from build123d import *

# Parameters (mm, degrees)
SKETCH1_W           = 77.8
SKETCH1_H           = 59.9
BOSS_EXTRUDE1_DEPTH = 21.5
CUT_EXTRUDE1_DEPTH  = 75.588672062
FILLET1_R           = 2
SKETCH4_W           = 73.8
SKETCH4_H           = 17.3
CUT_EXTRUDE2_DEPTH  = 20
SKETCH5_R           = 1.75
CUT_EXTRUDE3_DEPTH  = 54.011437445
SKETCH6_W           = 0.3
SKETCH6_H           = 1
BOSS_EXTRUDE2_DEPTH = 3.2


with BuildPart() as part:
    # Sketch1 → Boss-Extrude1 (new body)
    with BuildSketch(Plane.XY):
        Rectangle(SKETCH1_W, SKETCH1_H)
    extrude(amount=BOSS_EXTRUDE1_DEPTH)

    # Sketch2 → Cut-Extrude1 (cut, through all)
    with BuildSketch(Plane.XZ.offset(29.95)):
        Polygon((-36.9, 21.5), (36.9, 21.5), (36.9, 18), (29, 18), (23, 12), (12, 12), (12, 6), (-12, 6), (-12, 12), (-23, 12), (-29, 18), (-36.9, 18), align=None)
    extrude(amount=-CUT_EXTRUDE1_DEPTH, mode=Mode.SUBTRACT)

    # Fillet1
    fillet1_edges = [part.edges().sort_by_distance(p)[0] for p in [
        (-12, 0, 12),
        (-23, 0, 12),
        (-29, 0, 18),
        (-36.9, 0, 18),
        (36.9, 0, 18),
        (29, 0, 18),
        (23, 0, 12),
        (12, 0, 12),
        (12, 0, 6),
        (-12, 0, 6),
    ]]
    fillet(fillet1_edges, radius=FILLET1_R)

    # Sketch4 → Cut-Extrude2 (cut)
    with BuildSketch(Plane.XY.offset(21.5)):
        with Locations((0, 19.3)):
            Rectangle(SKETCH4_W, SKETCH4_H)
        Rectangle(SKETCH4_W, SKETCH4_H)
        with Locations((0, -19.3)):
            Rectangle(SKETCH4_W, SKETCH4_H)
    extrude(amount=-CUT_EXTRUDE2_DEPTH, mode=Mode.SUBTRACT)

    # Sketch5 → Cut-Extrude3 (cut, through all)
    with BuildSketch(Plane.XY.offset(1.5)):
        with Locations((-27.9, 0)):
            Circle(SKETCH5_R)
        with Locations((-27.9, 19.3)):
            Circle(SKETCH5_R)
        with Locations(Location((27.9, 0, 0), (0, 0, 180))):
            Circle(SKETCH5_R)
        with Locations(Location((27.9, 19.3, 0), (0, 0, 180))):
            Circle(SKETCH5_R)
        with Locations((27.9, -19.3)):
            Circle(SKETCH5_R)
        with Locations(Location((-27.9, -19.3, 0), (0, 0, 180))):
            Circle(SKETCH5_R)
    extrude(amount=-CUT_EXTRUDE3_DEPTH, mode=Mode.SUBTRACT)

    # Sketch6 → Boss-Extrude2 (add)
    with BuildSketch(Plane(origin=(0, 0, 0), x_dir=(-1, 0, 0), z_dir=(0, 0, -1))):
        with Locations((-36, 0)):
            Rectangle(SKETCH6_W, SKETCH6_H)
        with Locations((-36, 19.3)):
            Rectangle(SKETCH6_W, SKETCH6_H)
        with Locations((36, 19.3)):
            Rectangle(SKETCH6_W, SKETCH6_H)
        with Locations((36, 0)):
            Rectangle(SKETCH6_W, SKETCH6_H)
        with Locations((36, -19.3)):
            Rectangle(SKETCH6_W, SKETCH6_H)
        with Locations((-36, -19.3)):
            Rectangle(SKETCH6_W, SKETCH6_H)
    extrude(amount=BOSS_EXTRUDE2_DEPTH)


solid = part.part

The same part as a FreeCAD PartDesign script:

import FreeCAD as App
import Part
import Sketcher

V = App.Vector


def edges_at(feature, points):
    """Names of the edges that pass closest to the given points."""
    edges = feature.Shape.Edges
    near = lambda p: min(range(len(edges)), key=lambda i: edges[i].distToShape(Part.Vertex(*p))[0])
    return sorted({f"Edge{near(p) + 1}" for p in points})

doc = App.newDocument("Part")
params = doc.addObject("Spreadsheet::Sheet", "Params")
for row, (alias, value) in enumerate([
    ("sketch1_width", "77.8 mm"),
    ("sketch1_height", "59.9 mm"),
    ("pad1_length", "21.5 mm"),
    ("sketch2_width", "11 mm"),
    ("sketch2_width2", "24 mm"),
    ("sketch2_height", "6 mm"),
    ("sketch2_width3", "73.8 mm"),
    ("sketch2_width4", "7.9 mm"),
    ("fillet_radius", "2 mm"),
    ("sketch3_width", "73.8 mm"),
    ("sketch3_height", "17.3 mm"),
    ("pocket2_length", "20 mm"),
    ("sketch4_diameter", "3.5 mm"),
    ("sketch5_height", "1 mm"),
    ("sketch5_width", "0.3 mm"),
    ("pad2_length", "3.2 mm"),
], start=1):
    params.set(f"A{row}", alias)
    params.set(f"B{row}", "=" + value)
    params.setAlias(f"B{row}", alias)

body = doc.addObject("PartDesign::Body", "Body")

sketch1 = doc.addObject("Sketcher::SketchObject", "Sketch")
body.addObject(sketch1)
sketch1.AttachmentSupport = (doc.XY_Plane, [""])
sketch1.MapMode = "FlatFace"
sketch1.addGeometry([
    Part.LineSegment(V(-38.9, 29.95, 0), V(-38.9, -29.95, 0)),
    Part.LineSegment(V(-38.9, -29.95, 0), V(38.9, -29.95, 0)),
    Part.LineSegment(V(38.9, -29.95, 0), V(38.9, 29.95, 0)),
    Part.LineSegment(V(38.9, 29.95, 0), V(-38.9, 29.95, 0)),
], False)
sketch1.addConstraint([
    Sketcher.Constraint("Coincident", 0, 2, 1, 1),
    Sketcher.Constraint("Coincident", 1, 2, 2, 1),
    Sketcher.Constraint("Coincident", 2, 2, 3, 1),
    Sketcher.Constraint("Coincident", 3, 2, 0, 1),
    Sketcher.Constraint("Vertical", 0),
    Sketcher.Constraint("Horizontal", 1),
    Sketcher.Constraint("Vertical", 2),
    Sketcher.Constraint("Horizontal", 3),
    Sketcher.Constraint("Symmetric", 0, 2, 2, 2, -1, 1),
    Sketcher.Constraint("DistanceX", 1, 1, 1, 2, 77.8),
    Sketcher.Constraint("DistanceY", 0, 2, 0, 1, 59.9),
])
sketch1.setExpression("Constraints[9]", "Params.sketch1_width")
sketch1.setExpression("Constraints[10]", "Params.sketch1_height")
pad1 = doc.addObject("PartDesign::Pad", "Pad")
body.addObject(pad1)
pad1.Profile = sketch1
pad1.setExpression("Length", "Params.pad1_length")

sketch2 = doc.addObject("Sketcher::SketchObject", "Sketch001")
body.addObject(sketch2)
sketch2.AttachmentSupport = (doc.XZ_Plane, [""])
sketch2.MapMode = "FlatFace"
sketch2.AttachmentOffset = App.Placement(V(0, 0, 29.95), App.Rotation())
sketch2.addGeometry([
    Part.LineSegment(V(36.9, 21.5, 0), V(-36.9, 21.5, 0)),
    Part.LineSegment(V(-36.9, 21.5, 0), V(-36.9, 18, 0)),
    Part.LineSegment(V(-36.9, 18, 0), V(-29, 18, 0)),
    Part.LineSegment(V(-29, 18, 0), V(-23, 12, 0)),
    Part.LineSegment(V(-23, 12, 0), V(-12, 12, 0)),
    Part.LineSegment(V(-12, 12, 0), V(-12, 6, 0)),
    Part.LineSegment(V(-12, 6, 0), V(12, 6, 0)),
    Part.LineSegment(V(12, 6, 0), V(12, 12, 0)),
    Part.LineSegment(V(12, 12, 0), V(23, 12, 0)),
    Part.LineSegment(V(23, 12, 0), V(29, 18, 0)),
    Part.LineSegment(V(29, 18, 0), V(36.9, 18, 0)),
    Part.LineSegment(V(36.9, 18, 0), V(36.9, 21.5, 0)),
], False)
sketch2.addConstraint([
    Sketcher.Constraint("Coincident", 0, 2, 1, 1),
    Sketcher.Constraint("Coincident", 1, 2, 2, 1),
    Sketcher.Constraint("Coincident", 2, 2, 3, 1),
    Sketcher.Constraint("Coincident", 3, 2, 4, 1),
    Sketcher.Constraint("Coincident", 4, 2, 5, 1),
    Sketcher.Constraint("Coincident", 5, 2, 6, 1),
    Sketcher.Constraint("Coincident", 6, 2, 7, 1),
    Sketcher.Constraint("Coincident", 7, 2, 8, 1),
    Sketcher.Constraint("Coincident", 8, 2, 9, 1),
    Sketcher.Constraint("Coincident", 9, 2, 10, 1),
    Sketcher.Constraint("Coincident", 10, 2, 11, 1),
    Sketcher.Constraint("Coincident", 11, 2, 0, 1),
    Sketcher.Constraint("Horizontal", 0),
    Sketcher.Constraint("Vertical", 1),
    Sketcher.Constraint("Horizontal", 2),
    Sketcher.Constraint("Horizontal", 4),
    Sketcher.Constraint("Vertical", 5),
    Sketcher.Constraint("Horizontal", 6),
    Sketcher.Constraint("Vertical", 7),
    Sketcher.Constraint("Horizontal", 8),
    Sketcher.Constraint("Horizontal", 10),
    Sketcher.Constraint("Vertical", 11),
    Sketcher.Constraint("Symmetric", 4, 2, 7, 2, -2),
    Sketcher.Constraint("Symmetric", 2, 2, 9, 2, -2),
    Sketcher.Constraint("Perpendicular", 3, 9),
    Sketcher.Constraint("Equal", 4, 8),
    Sketcher.Constraint("Equal", 2, 10),
    Sketcher.Constraint("DistanceX", 4, 1, 4, 2, 11.0),
    Sketcher.Constraint("DistanceX", 6, 1, 6, 2, 24.0),
    Sketcher.Constraint("DistanceY", 5, 2, 5, 1, 6.0),
    Sketcher.Constraint("DistanceX", 0, 2, 0, 1, 73.8),
    Sketcher.Constraint("DistanceX", 2, 1, 2, 2, 7.9),
    Sketcher.Constraint("DistanceY", 1, 2, 1, 1, 3.5),
    Sketcher.Constraint("DistanceY", -1, 1, 1, 2, 18.0),
])
sketch2.setExpression("Constraints[27]", "Params.sketch2_width")
sketch2.setExpression("Constraints[28]", "Params.sketch2_width2")
sketch2.setExpression("Constraints[29]", "Params.sketch2_height")
sketch2.setExpression("Constraints[30]", "Params.sketch2_width3")
sketch2.setExpression("Constraints[31]", "Params.sketch2_width4")
pocket1 = doc.addObject("PartDesign::Pocket", "Pocket")
body.addObject(pocket1)
pocket1.Profile = sketch2
pocket1.Type = "ThroughAll"
doc.recompute()

fillet = doc.addObject("PartDesign::Fillet", "Fillet")
body.addObject(fillet)
fillet.Base = (pocket1, edges_at(pocket1, [
    (-12, 0, 12),
    (-23, 0, 12),
    (-29, 0, 18),
    (-36.9, 0, 18),
    (36.9, 0, 18),
    (29, 0, 18),
    (23, 0, 12),
    (12, 0, 12),
    (12, 0, 6),
    (-12, 0, 6),
]))
fillet.setExpression("Radius", "Params.fillet_radius")

sketch3 = doc.addObject("Sketcher::SketchObject", "Sketch002")
body.addObject(sketch3)
sketch3.AttachmentSupport = (doc.XY_Plane, [""])
sketch3.MapMode = "FlatFace"
sketch3.AttachmentOffset = App.Placement(V(0, 0, 21.5), App.Rotation())
sketch3.addGeometry([
    Part.LineSegment(V(-36.9, 27.95, 0), V(-36.9, 10.65, 0)),
    Part.LineSegment(V(-36.9, 10.65, 0), V(36.9, 10.65, 0)),
    Part.LineSegment(V(36.9, 10.65, 0), V(36.9, 27.95, 0)),
    Part.LineSegment(V(36.9, 27.95, 0), V(-36.9, 27.95, 0)),
    Part.LineSegment(V(-36.9, 8.65, 0), V(-36.9, -8.65, 0)),
    Part.LineSegment(V(-36.9, -8.65, 0), V(36.9, -8.65, 0)),
    Part.LineSegment(V(36.9, -8.65, 0), V(36.9, 8.65, 0)),
    Part.LineSegment(V(36.9, 8.65, 0), V(-36.9, 8.65, 0)),
    Part.LineSegment(V(-36.9, -10.65, 0), V(-36.9, -27.95, 0)),
    Part.LineSegment(V(-36.9, -27.95, 0), V(36.9, -27.95, 0)),
    Part.LineSegment(V(36.9, -27.95, 0), V(36.9, -10.65, 0)),
    Part.LineSegment(V(36.9, -10.65, 0), V(-36.9, -10.65, 0)),
], False)
sketch3.addConstraint([
    Sketcher.Constraint("Coincident", 0, 2, 1, 1),
    Sketcher.Constraint("Coincident", 1, 2, 2, 1),
    Sketcher.Constraint("Coincident", 2, 2, 3, 1),
    Sketcher.Constraint("Coincident", 3, 2, 0, 1),
    Sketcher.Constraint("Coincident", 4, 2, 5, 1),
    Sketcher.Constraint("Coincident", 5, 2, 6, 1),
    Sketcher.Constraint("Coincident", 6, 2, 7, 1),
    Sketcher.Constraint("Coincident", 7, 2, 4, 1),
    Sketcher.Constraint("Coincident", 8, 2, 9, 1),
    Sketcher.Constraint("Coincident", 9, 2, 10, 1),
    Sketcher.Constraint("Coincident", 10, 2, 11, 1),
    Sketcher.Constraint("Coincident", 11, 2, 8, 1),
    Sketcher.Constraint("Vertical", 0),
    Sketcher.Constraint("Horizontal", 1),
    Sketcher.Constraint("Vertical", 2),
    Sketcher.Constraint("Horizontal", 3),
    Sketcher.Constraint("Vertical", 4),
    Sketcher.Constraint("Horizontal", 5),
    Sketcher.Constraint("Vertical", 6),
    Sketcher.Constraint("Horizontal", 7),
    Sketcher.Constraint("Vertical", 8),
    Sketcher.Constraint("Horizontal", 9),
    Sketcher.Constraint("Vertical", 10),
    Sketcher.Constraint("Horizontal", 11),
    Sketcher.Constraint("Symmetric", 4, 2, 6, 2, -1, 1),
    Sketcher.Constraint("Symmetric", 2, 2, 8, 2, -1, 1),
    Sketcher.Constraint("Symmetric", 0, 2, 10, 2, -1, 1),
    Sketcher.Constraint("Vertical", 3, 2, 4, 2),
    Sketcher.Constraint("Vertical", 2, 2, 5, 2),
    Sketcher.Constraint("Equal", 2, 4),
    Sketcher.Constraint("DistanceX", 1, 1, 1, 2, 73.8),
    Sketcher.Constraint("DistanceY", 0, 2, 0, 1, 17.3),
    Sketcher.Constraint("DistanceY", 6, 2, 1, 2, 2.0),
])
sketch3.setExpression("Constraints[30]", "Params.sketch3_width")
sketch3.setExpression("Constraints[31]", "Params.sketch3_height")
pocket2 = doc.addObject("PartDesign::Pocket", "Pocket001")
body.addObject(pocket2)
pocket2.Profile = sketch3
pocket2.setExpression("Length", "Params.pocket2_length")

sketch4 = doc.addObject("Sketcher::SketchObject", "Sketch003")
body.addObject(sketch4)
sketch4.AttachmentSupport = (doc.XY_Plane, [""])
sketch4.MapMode = "FlatFace"
sketch4.AttachmentOffset = App.Placement(V(0, 0, 1.5), App.Rotation())
sketch4.addGeometry([
    Part.Circle(V(-27.9, 0, 0), V(0, 0, 1), 1.75),
    Part.Circle(V(-27.9, 19.3, 0), V(0, 0, 1), 1.75),
    Part.Circle(V(27.9, 0, 0), V(0, 0, 1), 1.75),
    Part.Circle(V(27.9, 19.3, 0), V(0, 0, 1), 1.75),
    Part.Circle(V(27.9, -19.3, 0), V(0, 0, 1), 1.75),
    Part.Circle(V(-27.9, -19.3, 0), V(0, 0, 1), 1.75),
], False)
sketch4.addConstraint([
    Sketcher.Constraint("Equal", 0, 1),
    Sketcher.Constraint("Equal", 1, 2),
    Sketcher.Constraint("Equal", 2, 3),
    Sketcher.Constraint("Equal", 3, 4),
    Sketcher.Constraint("Equal", 4, 5),
    Sketcher.Constraint("Symmetric", 0, 3, 2, 3, -1, 1),
    Sketcher.Constraint("Symmetric", 1, 3, 4, 3, -1, 1),
    Sketcher.Constraint("Symmetric", 3, 3, 5, 3, -1, 1),
    Sketcher.Constraint("Symmetric", 1, 3, 3, 3, -2),
    Sketcher.Constraint("PointOnObject", 0, 3, -1),
    Sketcher.Constraint("Vertical", 0, 3, 1, 3),
    Sketcher.Constraint("Diameter", 0, 3.5),
    Sketcher.Constraint("DistanceX", 0, 3, -1, 1, 27.9),
    Sketcher.Constraint("DistanceY", -1, 1, 1, 3, 19.3),
])
sketch4.setExpression("Constraints[11]", "Params.sketch4_diameter")
pocket3 = doc.addObject("PartDesign::Pocket", "Pocket002")
body.addObject(pocket3)
pocket3.Profile = sketch4
pocket3.Type = "ThroughAll"

sketch5 = doc.addObject("Sketcher::SketchObject", "Sketch004")
body.addObject(sketch5)
sketch5.AttachmentSupport = (doc.XY_Plane, [""])
sketch5.MapMode = "FlatFace"
sketch5.addGeometry([
    Part.LineSegment(V(36.15, 0.5, 0), V(36.15, -0.5, 0)),
    Part.LineSegment(V(36.15, -0.5, 0), V(35.85, -0.5, 0)),
    Part.LineSegment(V(35.85, -0.5, 0), V(35.85, 0.5, 0)),
    Part.LineSegment(V(35.85, 0.5, 0), V(36.15, 0.5, 0)),
    Part.LineSegment(V(36.15, 19.8, 0), V(36.15, 18.8, 0)),
    Part.LineSegment(V(36.15, 18.8, 0), V(35.85, 18.8, 0)),
    Part.LineSegment(V(35.85, 18.8, 0), V(35.85, 19.8, 0)),
    Part.LineSegment(V(35.85, 19.8, 0), V(36.15, 19.8, 0)),
    Part.LineSegment(V(-35.85, 19.8, 0), V(-35.85, 18.8, 0)),
    Part.LineSegment(V(-35.85, 18.8, 0), V(-36.15, 18.8, 0)),
    Part.LineSegment(V(-36.15, 18.8, 0), V(-36.15, 19.8, 0)),
    Part.LineSegment(V(-36.15, 19.8, 0), V(-35.85, 19.8, 0)),
    Part.LineSegment(V(-35.85, 0.5, 0), V(-35.85, -0.5, 0)),
    Part.LineSegment(V(-35.85, -0.5, 0), V(-36.15, -0.5, 0)),
    Part.LineSegment(V(-36.15, -0.5, 0), V(-36.15, 0.5, 0)),
    Part.LineSegment(V(-36.15, 0.5, 0), V(-35.85, 0.5, 0)),
    Part.LineSegment(V(-35.85, -18.8, 0), V(-35.85, -19.8, 0)),
    Part.LineSegment(V(-35.85, -19.8, 0), V(-36.15, -19.8, 0)),
    Part.LineSegment(V(-36.15, -19.8, 0), V(-36.15, -18.8, 0)),
    Part.LineSegment(V(-36.15, -18.8, 0), V(-35.85, -18.8, 0)),
    Part.LineSegment(V(36.15, -18.8, 0), V(36.15, -19.8, 0)),
    Part.LineSegment(V(36.15, -19.8, 0), V(35.85, -19.8, 0)),
    Part.LineSegment(V(35.85, -19.8, 0), V(35.85, -18.8, 0)),
    Part.LineSegment(V(35.85, -18.8, 0), V(36.15, -18.8, 0)),
], False)
sketch5.addConstraint([
    Sketcher.Constraint("Coincident", 0, 2, 1, 1),
    Sketcher.Constraint("Coincident", 1, 2, 2, 1),
    Sketcher.Constraint("Coincident", 2, 2, 3, 1),
    Sketcher.Constraint("Coincident", 3, 2, 0, 1),
    Sketcher.Constraint("Coincident", 4, 2, 5, 1),
    Sketcher.Constraint("Coincident", 5, 2, 6, 1),
    Sketcher.Constraint("Coincident", 6, 2, 7, 1),
    Sketcher.Constraint("Coincident", 7, 2, 4, 1),
    Sketcher.Constraint("Coincident", 8, 2, 9, 1),
    Sketcher.Constraint("Coincident", 9, 2, 10, 1),
    Sketcher.Constraint("Coincident", 10, 2, 11, 1),
    Sketcher.Constraint("Coincident", 11, 2, 8, 1),
    Sketcher.Constraint("Coincident", 12, 2, 13, 1),
    Sketcher.Constraint("Coincident", 13, 2, 14, 1),
    Sketcher.Constraint("Coincident", 14, 2, 15, 1),
    Sketcher.Constraint("Coincident", 15, 2, 12, 1),
    Sketcher.Constraint("Coincident", 16, 2, 17, 1),
    Sketcher.Constraint("Coincident", 17, 2, 18, 1),
    Sketcher.Constraint("Coincident", 18, 2, 19, 1),
    Sketcher.Constraint("Coincident", 19, 2, 16, 1),
    Sketcher.Constraint("Coincident", 20, 2, 21, 1),
    Sketcher.Constraint("Coincident", 21, 2, 22, 1),
    Sketcher.Constraint("Coincident", 22, 2, 23, 1),
    Sketcher.Constraint("Coincident", 23, 2, 20, 1),
    Sketcher.Constraint("Vertical", 0),
    Sketcher.Constraint("Horizontal", 1),
    Sketcher.Constraint("Vertical", 2),
    Sketcher.Constraint("Horizontal", 3),
    Sketcher.Constraint("Vertical", 4),
    Sketcher.Constraint("Horizontal", 5),
    Sketcher.Constraint("Vertical", 6),
    Sketcher.Constraint("Horizontal", 7),
    Sketcher.Constraint("Vertical", 8),
    Sketcher.Constraint("Horizontal", 9),
    Sketcher.Constraint("Vertical", 10),
    Sketcher.Constraint("Horizontal", 11),
    Sketcher.Constraint("Vertical", 12),
    Sketcher.Constraint("Horizontal", 13),
    Sketcher.Constraint("Vertical", 14),
    Sketcher.Constraint("Horizontal", 15),
    Sketcher.Constraint("Vertical", 16),
    Sketcher.Constraint("Horizontal", 17),
    Sketcher.Constraint("Vertical", 18),
    Sketcher.Constraint("Horizontal", 19),
    Sketcher.Constraint("Vertical", 20),
    Sketcher.Constraint("Horizontal", 21),
    Sketcher.Constraint("Vertical", 22),
    Sketcher.Constraint("Horizontal", 23),
    Sketcher.Constraint("Symmetric", 2, 2, 12, 2, -1, 1),
    Sketcher.Constraint("Symmetric", 0, 2, 14, 2, -1, 1),
    Sketcher.Constraint("Symmetric", 6, 2, 16, 2, -1, 1),
    Sketcher.Constraint("Symmetric", 4, 2, 18, 2, -1, 1),
    Sketcher.Constraint("Symmetric", 10, 2, 20, 2, -1, 1),
    Sketcher.Constraint("Symmetric", 8, 2, 22, 2, -1, 1),
    Sketcher.Constraint("Symmetric", 5, 2, 8, 2, -2),
    Sketcher.Constraint("Symmetric", 7, 2, 10, 2, -2),
    Sketcher.Constraint("Horizontal", 1, 2, 12, 2),
    Sketcher.Constraint("Vertical", 3, 2, 4, 2),
    Sketcher.Constraint("Vertical", 2, 2, 5, 2),
    Sketcher.Constraint("Equal", 2, 4),
    Sketcher.Constraint("DistanceY", 0, 2, 0, 1, 1.0),
    Sketcher.Constraint("DistanceX", 1, 2, 1, 1, 0.3),
    Sketcher.Constraint("DistanceX", 8, 2, 4, 2, 72.0),
    Sketcher.Constraint("DistanceY", -1, 1, 4, 2, 18.8),
])
sketch5.setExpression("Constraints[60]", "Params.sketch5_height")
sketch5.setExpression("Constraints[61]", "Params.sketch5_width")
pad2 = doc.addObject("PartDesign::Pad", "Pad001")
body.addObject(pad2)
pad2.Profile = sketch5
pad2.setExpression("Length", "Params.pad2_length")
pad2.Reversed = True

doc.recompute()
